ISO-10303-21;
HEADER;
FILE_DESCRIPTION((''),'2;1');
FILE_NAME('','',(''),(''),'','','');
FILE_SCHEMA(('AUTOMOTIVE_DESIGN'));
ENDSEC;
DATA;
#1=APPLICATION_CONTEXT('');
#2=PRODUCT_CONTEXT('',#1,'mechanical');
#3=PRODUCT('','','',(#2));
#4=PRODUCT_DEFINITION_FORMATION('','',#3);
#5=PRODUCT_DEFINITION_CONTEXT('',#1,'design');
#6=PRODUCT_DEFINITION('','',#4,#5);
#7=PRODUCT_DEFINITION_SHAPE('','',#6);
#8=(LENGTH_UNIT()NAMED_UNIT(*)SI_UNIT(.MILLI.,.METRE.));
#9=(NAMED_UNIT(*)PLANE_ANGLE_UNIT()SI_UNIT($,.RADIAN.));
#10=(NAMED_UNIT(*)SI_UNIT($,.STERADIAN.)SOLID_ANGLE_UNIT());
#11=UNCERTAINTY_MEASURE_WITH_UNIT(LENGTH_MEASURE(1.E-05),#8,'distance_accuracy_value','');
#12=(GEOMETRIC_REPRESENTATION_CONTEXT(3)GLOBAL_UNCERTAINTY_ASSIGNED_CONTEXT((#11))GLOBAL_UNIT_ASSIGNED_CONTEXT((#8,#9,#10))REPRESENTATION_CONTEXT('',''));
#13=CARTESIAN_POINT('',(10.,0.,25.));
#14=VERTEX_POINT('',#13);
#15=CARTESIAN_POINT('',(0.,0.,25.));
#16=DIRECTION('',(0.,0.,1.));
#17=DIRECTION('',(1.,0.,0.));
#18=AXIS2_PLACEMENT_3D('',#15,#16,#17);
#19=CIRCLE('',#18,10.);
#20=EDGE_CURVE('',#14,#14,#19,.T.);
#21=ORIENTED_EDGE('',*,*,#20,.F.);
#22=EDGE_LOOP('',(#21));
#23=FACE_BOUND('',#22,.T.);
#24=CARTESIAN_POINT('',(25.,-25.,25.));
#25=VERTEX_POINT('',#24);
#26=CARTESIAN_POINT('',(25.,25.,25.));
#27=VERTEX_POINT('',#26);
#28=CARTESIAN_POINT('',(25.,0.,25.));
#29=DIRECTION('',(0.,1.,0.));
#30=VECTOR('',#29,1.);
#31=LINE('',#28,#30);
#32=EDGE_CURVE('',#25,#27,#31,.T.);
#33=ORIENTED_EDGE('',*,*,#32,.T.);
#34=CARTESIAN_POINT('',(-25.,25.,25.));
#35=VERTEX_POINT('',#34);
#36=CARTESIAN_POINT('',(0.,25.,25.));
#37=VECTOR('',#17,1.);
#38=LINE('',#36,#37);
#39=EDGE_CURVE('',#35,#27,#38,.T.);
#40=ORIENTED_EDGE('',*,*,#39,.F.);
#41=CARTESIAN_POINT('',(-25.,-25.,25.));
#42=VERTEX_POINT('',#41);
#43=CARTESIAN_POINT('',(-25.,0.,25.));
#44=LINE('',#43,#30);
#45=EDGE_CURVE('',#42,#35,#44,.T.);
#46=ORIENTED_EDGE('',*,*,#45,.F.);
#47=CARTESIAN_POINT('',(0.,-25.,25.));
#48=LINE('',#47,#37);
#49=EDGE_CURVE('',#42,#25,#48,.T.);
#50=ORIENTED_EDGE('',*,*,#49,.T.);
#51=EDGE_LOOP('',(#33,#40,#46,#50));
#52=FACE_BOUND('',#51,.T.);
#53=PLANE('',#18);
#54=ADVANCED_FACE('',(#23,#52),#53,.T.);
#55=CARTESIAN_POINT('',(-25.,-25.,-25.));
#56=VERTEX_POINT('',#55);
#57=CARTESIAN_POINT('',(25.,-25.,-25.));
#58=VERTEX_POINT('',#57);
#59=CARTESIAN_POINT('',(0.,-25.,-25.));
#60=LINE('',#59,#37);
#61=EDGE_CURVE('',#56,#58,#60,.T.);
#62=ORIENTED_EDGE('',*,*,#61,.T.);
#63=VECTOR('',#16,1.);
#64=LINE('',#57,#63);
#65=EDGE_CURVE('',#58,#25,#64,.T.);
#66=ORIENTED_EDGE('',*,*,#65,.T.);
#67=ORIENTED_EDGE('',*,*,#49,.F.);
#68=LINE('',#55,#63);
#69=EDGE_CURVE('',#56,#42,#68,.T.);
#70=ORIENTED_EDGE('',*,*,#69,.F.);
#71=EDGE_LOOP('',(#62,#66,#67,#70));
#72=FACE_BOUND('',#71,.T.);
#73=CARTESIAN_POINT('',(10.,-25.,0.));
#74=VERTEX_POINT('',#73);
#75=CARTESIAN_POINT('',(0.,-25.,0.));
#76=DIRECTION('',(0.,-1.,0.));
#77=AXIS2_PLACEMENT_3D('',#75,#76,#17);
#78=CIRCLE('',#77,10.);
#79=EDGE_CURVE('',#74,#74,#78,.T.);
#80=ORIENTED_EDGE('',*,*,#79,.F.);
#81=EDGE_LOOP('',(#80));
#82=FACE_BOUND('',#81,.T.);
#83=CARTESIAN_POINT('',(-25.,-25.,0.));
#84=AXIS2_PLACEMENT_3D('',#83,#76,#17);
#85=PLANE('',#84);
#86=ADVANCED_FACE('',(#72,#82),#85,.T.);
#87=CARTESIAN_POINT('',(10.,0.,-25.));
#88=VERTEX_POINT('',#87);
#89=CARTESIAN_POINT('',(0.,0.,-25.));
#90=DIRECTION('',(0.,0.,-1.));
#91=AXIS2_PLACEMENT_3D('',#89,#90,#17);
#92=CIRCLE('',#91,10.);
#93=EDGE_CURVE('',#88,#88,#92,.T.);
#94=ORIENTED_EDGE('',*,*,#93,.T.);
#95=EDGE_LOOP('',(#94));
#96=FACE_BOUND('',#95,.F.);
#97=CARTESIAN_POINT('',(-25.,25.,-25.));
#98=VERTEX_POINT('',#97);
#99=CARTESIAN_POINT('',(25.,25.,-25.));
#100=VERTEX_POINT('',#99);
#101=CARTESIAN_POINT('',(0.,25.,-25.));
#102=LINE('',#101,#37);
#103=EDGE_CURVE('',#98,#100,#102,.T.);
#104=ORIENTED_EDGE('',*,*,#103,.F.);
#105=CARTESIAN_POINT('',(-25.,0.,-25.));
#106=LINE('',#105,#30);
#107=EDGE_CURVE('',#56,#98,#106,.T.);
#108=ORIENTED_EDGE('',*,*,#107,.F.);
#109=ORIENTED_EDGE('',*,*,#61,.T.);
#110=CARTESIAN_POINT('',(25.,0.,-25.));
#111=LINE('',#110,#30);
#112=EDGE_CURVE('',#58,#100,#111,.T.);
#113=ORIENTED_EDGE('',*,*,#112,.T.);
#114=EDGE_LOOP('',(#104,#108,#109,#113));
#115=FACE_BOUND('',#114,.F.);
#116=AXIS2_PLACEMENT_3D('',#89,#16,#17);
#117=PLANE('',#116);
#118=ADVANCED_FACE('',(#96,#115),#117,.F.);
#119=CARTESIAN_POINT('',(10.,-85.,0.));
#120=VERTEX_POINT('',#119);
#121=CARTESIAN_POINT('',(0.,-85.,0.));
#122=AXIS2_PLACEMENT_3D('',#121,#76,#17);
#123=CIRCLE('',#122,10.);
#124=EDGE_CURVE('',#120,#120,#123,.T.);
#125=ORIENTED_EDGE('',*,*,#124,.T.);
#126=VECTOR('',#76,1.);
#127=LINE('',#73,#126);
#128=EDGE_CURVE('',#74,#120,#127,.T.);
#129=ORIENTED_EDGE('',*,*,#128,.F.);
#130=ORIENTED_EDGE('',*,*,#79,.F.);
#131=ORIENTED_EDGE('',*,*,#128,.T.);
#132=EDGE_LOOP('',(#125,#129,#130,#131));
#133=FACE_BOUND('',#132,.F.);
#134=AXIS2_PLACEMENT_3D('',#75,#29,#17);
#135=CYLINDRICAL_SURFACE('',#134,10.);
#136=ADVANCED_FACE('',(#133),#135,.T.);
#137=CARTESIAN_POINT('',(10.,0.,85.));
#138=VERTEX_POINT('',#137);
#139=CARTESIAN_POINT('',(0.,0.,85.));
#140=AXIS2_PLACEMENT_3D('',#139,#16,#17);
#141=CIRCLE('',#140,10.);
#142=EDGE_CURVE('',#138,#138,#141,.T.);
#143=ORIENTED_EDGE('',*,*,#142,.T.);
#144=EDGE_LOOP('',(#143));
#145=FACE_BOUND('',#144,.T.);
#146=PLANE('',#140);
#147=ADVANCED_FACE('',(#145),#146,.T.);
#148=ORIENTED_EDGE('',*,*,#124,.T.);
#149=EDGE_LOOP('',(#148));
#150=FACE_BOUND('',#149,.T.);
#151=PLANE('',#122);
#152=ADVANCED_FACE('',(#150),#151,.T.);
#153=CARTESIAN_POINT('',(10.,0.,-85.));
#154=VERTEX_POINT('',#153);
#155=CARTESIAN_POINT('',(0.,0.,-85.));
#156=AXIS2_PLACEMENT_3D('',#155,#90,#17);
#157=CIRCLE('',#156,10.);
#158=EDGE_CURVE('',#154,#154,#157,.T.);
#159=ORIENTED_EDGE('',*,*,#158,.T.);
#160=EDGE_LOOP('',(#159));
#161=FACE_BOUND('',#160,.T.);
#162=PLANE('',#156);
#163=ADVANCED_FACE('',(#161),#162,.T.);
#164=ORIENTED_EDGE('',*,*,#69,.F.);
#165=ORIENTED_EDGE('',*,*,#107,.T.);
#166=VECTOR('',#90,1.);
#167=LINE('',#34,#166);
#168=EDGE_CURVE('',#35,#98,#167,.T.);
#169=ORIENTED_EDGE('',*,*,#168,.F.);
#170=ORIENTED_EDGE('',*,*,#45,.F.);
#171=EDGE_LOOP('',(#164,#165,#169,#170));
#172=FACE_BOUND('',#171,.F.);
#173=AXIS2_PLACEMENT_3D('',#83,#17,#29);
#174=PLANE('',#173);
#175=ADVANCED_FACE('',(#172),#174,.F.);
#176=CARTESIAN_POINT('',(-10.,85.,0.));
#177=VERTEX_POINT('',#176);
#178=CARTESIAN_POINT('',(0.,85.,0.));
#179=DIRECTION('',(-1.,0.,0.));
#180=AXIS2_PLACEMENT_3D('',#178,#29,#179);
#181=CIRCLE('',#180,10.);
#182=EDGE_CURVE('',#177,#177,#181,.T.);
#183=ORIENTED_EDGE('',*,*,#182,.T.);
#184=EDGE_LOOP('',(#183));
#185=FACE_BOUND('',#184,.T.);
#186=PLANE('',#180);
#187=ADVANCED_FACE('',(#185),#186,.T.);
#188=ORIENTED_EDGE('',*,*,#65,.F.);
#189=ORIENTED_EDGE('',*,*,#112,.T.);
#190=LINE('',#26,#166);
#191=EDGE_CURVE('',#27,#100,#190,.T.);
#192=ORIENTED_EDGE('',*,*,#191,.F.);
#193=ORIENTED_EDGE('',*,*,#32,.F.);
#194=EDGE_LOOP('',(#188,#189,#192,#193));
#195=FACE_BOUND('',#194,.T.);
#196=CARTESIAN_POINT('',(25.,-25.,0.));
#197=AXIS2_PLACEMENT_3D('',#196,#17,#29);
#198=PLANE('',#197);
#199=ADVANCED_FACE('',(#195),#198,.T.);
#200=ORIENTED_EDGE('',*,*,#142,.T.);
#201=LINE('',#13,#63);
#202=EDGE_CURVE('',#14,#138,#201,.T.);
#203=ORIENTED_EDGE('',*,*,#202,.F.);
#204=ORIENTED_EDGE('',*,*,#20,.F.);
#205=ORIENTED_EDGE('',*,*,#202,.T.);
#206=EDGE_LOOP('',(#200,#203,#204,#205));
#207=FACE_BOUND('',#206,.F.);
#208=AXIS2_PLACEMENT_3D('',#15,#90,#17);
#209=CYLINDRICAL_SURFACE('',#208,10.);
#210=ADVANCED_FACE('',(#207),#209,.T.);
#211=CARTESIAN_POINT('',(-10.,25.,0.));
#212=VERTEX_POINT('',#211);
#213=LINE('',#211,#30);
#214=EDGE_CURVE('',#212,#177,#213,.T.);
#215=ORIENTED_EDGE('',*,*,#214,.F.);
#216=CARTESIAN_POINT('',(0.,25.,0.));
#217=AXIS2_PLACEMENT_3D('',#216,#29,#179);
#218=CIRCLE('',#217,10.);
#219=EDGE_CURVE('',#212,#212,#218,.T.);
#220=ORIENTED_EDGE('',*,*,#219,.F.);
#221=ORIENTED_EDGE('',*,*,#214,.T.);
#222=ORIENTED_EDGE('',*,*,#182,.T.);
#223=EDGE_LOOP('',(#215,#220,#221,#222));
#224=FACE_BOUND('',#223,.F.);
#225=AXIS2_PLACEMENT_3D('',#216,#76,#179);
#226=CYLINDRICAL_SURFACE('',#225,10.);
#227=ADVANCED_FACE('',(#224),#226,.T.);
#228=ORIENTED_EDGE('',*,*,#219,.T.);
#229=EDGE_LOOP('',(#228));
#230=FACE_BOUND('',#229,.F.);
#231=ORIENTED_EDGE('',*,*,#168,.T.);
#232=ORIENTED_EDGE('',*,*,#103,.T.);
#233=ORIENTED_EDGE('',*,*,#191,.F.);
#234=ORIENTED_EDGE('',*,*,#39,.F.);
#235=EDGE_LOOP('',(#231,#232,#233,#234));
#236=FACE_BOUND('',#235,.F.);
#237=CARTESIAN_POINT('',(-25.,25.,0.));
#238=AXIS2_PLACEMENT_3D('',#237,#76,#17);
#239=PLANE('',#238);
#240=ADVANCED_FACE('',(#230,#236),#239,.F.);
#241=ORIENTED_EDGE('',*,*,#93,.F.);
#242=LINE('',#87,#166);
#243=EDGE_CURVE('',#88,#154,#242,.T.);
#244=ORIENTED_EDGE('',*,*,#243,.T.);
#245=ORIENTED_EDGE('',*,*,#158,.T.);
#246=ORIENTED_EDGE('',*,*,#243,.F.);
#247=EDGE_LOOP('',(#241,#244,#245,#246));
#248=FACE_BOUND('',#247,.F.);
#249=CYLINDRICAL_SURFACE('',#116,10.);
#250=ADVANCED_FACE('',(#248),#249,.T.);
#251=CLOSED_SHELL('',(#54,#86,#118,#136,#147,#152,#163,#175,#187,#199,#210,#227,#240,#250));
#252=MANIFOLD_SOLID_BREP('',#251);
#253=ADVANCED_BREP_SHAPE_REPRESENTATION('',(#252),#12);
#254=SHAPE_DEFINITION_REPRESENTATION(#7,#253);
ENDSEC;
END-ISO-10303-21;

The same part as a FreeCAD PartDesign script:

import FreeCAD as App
import Part
import Sketcher

V = App.Vector
Q = App.Units.Quantity

doc = App.newDocument("Part")
body = doc.addObject("PartDesign::Body", "Body")

sketch1 = body.newObject("Sketcher::SketchObject", "Sketch")
sketch1.AttachmentSupport = (doc.getObject("XY_Plane"), [""])
sketch1.MapMode = "FlatFace"
sketch1.addGeometry([
    Part.LineSegment(V(-25, 25, 0), V(-25, -25, 0)),
    Part.LineSegment(V(-25, -25, 0), V(25, -25, 0)),
    Part.LineSegment(V(25, -25, 0), V(25, 25, 0)),
    Part.LineSegment(V(25, 25, 0), V(-25, 25, 0)),
], False)
sketch1.addConstraint([
    Sketcher.Constraint("Coincident", 0, 2, 1, 1),
    Sketcher.Constraint("Coincident", 1, 2, 2, 1),
    Sketcher.Constraint("Coincident", 2, 2, 3, 1),
    Sketcher.Constraint("Coincident", 3, 2, 0, 1),
    Sketcher.Constraint("Vertical", 0),
    Sketcher.Constraint("Horizontal", 1),
    Sketcher.Constraint("Vertical", 2),
    Sketcher.Constraint("Horizontal", 3),
    Sketcher.Constraint("Symmetric", 0, 2, 2, 2, -1, 1),
    Sketcher.Constraint("Equal", 3, 0),
    Sketcher.Constraint("DistanceX", 1, 1, 1, 2, Q("50 mm")),
])
pad1 = body.newObject("PartDesign::Pad", "Pad")
pad1.Profile = sketch1
pad1.Type = "TwoLengths"
pad1.Length = 25
pad1.Length2 = 25

sketch2 = body.newObject("Sketcher::SketchObject", "Sketch001")
sketch2.AttachmentSupport = (doc.getObject("XZ_Plane"), [""])
sketch2.MapMode = "FlatFace"
sketch2.AttachmentOffset = App.Placement(V(0, 0, 25), App.Rotation())
sketch2.addGeometry(Part.Circle(V(0, 0, 0), V(0, 0, 1), 10), False)
sketch2.addConstraint([
    Sketcher.Constraint("Coincident", 0, 3, -1, 1),
    Sketcher.Constraint("Diameter", 0, Q("20 mm")),
])
pad2 = body.newObject("PartDesign::Pad", "Pad001")
pad2.Profile = sketch2
pad2.Length = 60

sketch3 = body.newObject("Sketcher::SketchObject", "Sketch002")
sketch3.AttachmentSupport = (doc.getObject("XY_Plane"), [""])
sketch3.MapMode = "FlatFace"
sketch3.AttachmentOffset = App.Placement(V(0, 0, -25), App.Rotation())
sketch3.addGeometry(Part.Circle(V(0, 0, 0), V(0, 0, 1), 10), False)
sketch3.addConstraint([
    Sketcher.Constraint("Coincident", 0, 3, -1, 1),
    Sketcher.Constraint("Diameter", 0, Q("20 mm")),
])
pad3 = body.newObject("PartDesign::Pad", "Pad002")
pad3.Profile = sketch3
pad3.Length = 60
pad3.Reversed = True

sketch4 = body.newObject("Sketcher::SketchObject", "Sketch003")
sketch4.AttachmentSupport = (doc.getObject("XY_Plane"), [""])
sketch4.MapMode = "FlatFace"
sketch4.AttachmentOffset = App.Placement(V(0, 0, 25), App.Rotation())
sketch4.addGeometry(Part.Circle(V(0, 0, 0), V(0, 0, 1), 10), False)
sketch4.addConstraint([
    Sketcher.Constraint("Coincident", 0, 3, -1, 1),
    Sketcher.Constraint("Diameter", 0, Q("20 mm")),
])
pad4 = body.newObject("PartDesign::Pad", "Pad003")
pad4.Profile = sketch4
pad4.Length = 60

sketch5 = body.newObject("Sketcher::SketchObject", "Sketch004")
sketch5.AttachmentSupport = (doc.getObject("XZ_Plane"), [""])
sketch5.MapMode = "FlatFace"
sketch5.AttachmentOffset = App.Placement(V(0, 0, -25), App.Rotation())
sketch5.addGeometry(Part.Circle(V(0, 0, 0), V(0, 0, 1), 10), False)
sketch5.addConstraint([
    Sketcher.Constraint("Coincident", 0, 3, -1, 1),
    Sketcher.Constraint("Diameter", 0, Q("20 mm")),
])
pad5 = body.newObject("PartDesign::Pad", "Pad004")
pad5.Profile = sketch5
pad5.Length = 60
pad5.Reversed = True

doc.recompute()
